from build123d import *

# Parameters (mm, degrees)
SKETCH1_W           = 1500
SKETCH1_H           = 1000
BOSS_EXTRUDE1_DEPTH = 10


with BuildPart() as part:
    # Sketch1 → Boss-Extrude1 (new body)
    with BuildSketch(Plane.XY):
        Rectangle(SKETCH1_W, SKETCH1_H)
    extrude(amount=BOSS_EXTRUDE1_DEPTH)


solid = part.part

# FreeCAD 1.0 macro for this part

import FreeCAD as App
import Part
import Sketcher
Q = App.Units.Quantity


def add_polygon(sketch, points):
    """Adds a closed chain of lines whose ends are joined by coincident constraints."""
    first, n = sketch.GeometryCount, len(points)
    for a, b in zip(points, points[1:] + points[:1]):
        sketch.addGeometry(Part.LineSegment(App.Vector(*a, 0), App.Vector(*b, 0)), False)
    for i in range(n):
        sketch.addConstraint(Sketcher.Constraint("Coincident", first + i, 2, first + (i + 1) % n, 1))

doc = App.newDocument("Part")
body = doc.addObject("PartDesign::Body", "Body")

sketch1 = doc.addObject("Sketcher::SketchObject", "Sketch")
body.addObject(sketch1)
sketch1.AttachmentSupport = (doc.XY_Plane, [""])
sketch1.MapMode = "FlatFace"
add_polygon(sketch1, [(-750, 500), (-750, -500), (750, -500), (750, 500)])
sketch1.addConstraint([
    Sketcher.Constraint("Vertical", 0),
    Sketcher.Constraint("Horizontal", 1),
    Sketcher.Constraint("Vertical", 2),
    Sketcher.Constraint("Horizontal", 3),
    Sketcher.Constraint("Symmetric", 0, 2, 2, 2, -1, 1),
    Sketcher.Constraint("DistanceX", 1, 1, 1, 2, Q("1500 mm")),
    Sketcher.Constraint("DistanceY", 0, 2, 0, 1, Q("1000 mm")),
])
pad1 = doc.addObject("PartDesign::Pad", "Pad")
body.addObject(pad1)
pad1.Profile = sketch1
pad1.Length = 10

doc.recompute()
